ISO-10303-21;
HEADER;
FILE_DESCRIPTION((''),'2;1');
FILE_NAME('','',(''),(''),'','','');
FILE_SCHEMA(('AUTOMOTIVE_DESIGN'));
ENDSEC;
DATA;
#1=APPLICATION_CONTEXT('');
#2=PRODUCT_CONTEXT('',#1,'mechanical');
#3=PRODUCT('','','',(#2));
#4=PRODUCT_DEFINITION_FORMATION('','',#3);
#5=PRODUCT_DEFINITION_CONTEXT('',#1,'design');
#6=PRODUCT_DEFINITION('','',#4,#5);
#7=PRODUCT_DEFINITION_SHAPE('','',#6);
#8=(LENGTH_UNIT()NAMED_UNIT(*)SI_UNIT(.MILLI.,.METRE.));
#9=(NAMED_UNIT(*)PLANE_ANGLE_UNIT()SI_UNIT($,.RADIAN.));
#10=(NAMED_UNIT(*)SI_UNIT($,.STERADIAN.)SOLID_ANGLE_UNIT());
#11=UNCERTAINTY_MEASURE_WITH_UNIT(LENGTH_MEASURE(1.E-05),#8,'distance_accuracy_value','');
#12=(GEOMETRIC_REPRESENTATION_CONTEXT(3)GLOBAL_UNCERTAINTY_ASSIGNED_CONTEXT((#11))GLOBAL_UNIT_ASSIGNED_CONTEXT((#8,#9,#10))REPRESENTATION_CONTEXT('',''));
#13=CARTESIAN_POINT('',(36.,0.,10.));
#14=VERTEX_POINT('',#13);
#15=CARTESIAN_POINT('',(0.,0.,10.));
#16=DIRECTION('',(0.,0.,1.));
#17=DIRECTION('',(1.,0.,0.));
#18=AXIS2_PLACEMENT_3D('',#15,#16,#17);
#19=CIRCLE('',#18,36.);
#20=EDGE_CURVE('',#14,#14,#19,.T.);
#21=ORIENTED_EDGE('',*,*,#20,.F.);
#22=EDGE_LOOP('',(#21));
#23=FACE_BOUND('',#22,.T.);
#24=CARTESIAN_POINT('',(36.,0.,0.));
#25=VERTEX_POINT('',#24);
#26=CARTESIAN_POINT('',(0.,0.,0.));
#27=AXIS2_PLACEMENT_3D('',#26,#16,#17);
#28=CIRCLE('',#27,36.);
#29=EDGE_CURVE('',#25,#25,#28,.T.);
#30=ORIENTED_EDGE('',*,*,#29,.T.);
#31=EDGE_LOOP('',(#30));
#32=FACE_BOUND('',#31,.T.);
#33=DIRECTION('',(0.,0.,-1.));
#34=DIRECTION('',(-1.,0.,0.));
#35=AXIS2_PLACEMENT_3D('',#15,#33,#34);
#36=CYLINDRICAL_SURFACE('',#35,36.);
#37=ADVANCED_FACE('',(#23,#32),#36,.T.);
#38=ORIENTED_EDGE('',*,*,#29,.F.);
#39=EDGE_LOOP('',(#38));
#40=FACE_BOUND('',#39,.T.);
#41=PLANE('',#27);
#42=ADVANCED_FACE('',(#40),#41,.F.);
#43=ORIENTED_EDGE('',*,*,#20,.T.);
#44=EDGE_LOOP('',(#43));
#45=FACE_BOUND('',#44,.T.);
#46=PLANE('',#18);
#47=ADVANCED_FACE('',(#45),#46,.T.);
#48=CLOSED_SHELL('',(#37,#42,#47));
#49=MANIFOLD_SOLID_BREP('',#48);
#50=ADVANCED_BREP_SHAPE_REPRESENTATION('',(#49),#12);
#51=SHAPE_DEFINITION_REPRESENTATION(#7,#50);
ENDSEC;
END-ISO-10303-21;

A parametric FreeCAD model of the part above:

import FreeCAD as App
import Part
import Sketcher

V = App.Vector
Q = App.Units.Quantity

doc = App.newDocument("Part")
body = doc.addObject("PartDesign::Body", "Body")

# Sketch on XY plane
sketch1 = body.newObject("Sketcher::SketchObject", "Sketch")
sketch1.AttachmentSupport = (doc.getObject("XY_Plane"), [""])
sketch1.MapMode = "FlatFace"
sketch1.addGeometry(Part.Circle(V(0, 0, 0), V(0, 0, 1), 36), False)
sketch1.addConstraint([
    Sketcher.Constraint("Coincident", 0, 3, -1, 1),
    Sketcher.Constraint("Diameter", 0, Q("72 mm")),
])
pad1 = body.newObject("PartDesign::Pad", "Pad")
pad1.Profile = sketch1
pad1.Length = 10

doc.recompute()
